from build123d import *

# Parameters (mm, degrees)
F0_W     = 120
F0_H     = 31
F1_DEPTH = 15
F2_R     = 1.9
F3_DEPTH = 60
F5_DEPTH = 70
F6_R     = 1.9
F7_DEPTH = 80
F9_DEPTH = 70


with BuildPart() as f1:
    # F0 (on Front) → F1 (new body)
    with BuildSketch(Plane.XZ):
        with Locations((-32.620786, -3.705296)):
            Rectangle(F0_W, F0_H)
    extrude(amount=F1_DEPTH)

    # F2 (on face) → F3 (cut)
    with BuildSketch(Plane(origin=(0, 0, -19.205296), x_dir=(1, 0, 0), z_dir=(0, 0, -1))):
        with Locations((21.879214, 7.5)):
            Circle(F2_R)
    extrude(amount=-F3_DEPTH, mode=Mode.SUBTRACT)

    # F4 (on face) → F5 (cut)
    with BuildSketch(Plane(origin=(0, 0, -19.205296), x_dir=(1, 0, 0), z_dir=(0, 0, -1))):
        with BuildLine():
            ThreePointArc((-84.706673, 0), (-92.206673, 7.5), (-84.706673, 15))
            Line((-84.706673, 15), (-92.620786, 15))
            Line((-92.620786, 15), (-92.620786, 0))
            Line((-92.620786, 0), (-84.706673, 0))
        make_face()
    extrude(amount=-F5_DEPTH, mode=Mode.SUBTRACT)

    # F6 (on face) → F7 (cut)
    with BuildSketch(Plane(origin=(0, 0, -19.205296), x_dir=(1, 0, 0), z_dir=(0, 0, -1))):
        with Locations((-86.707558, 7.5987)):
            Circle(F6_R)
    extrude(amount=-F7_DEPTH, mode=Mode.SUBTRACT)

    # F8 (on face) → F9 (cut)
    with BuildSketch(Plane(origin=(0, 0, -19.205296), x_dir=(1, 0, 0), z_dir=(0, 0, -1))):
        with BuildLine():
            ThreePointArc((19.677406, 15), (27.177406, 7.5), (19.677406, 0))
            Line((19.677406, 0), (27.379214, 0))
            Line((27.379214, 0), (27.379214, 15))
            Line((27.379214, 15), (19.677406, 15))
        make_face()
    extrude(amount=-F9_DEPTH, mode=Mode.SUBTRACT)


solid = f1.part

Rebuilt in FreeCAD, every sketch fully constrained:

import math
import FreeCAD as App
import Part
import Sketcher
Q = App.Units.Quantity

doc = App.newDocument("Part")
params = doc.addObject("Spreadsheet::Sheet", "Params")
for row, (alias, value) in enumerate([
    ("sketch1_width", "120 mm"),
    ("sketch1_height", "31 mm"),
    ("pad1_length", "15 mm"),
    ("sketch2_diameter", "3.8 mm"),
    ("pocket1_length", "60 mm"),
    ("sketch3_radius", "7.5 mm"),
    ("pocket2_length", "70 mm"),
    ("sketch4_diameter", "3.8 mm"),
    ("pocket3_length", "80 mm"),
    ("sketch5_radius", "7.5 mm"),
    ("pocket4_length", "70 mm"),
], start=1):
    params.set(f"A{row}", alias)
    params.set(f"B{row}", "=" + value)
    params.setAlias(f"B{row}", alias)

body = doc.addObject("PartDesign::Body", "Body")

# Sketch on XZ plane
sketch1 = body.newObject("Sketcher::SketchObject", "Sketch")
sketch1.AttachmentSupport = (doc.getObject("XZ_Plane"), [""])
sketch1.MapMode = "FlatFace"
sketch1.addGeometry([
    Part.LineSegment(App.Vector(-93, 12, 0), App.Vector(-93, -19, 0)),
    Part.LineSegment(App.Vector(-93, -19, 0), App.Vector(27, -19, 0)),
    Part.LineSegment(App.Vector(27, -19, 0), App.Vector(27, 12, 0)),
    Part.LineSegment(App.Vector(27, 12, 0), App.Vector(-93, 12, 0)),
], False)
sketch1.addConstraint([
    Sketcher.Constraint("Coincident", 0, 2, 1, 1),
    Sketcher.Constraint("Coincident", 1, 2, 2, 1),
    Sketcher.Constraint("Coincident", 2, 2, 3, 1),
    Sketcher.Constraint("Coincident", 3, 2, 0, 1),
    Sketcher.Constraint("Vertical", 0),
    Sketcher.Constraint("Horizontal", 1),
    Sketcher.Constraint("Vertical", 2),
    Sketcher.Constraint("Horizontal", 3),
    Sketcher.Constraint("DistanceX", 1, 1, 1, 2, Q("120 mm")),
    Sketcher.Constraint("DistanceY", 0, 2, 0, 1, Q("31 mm")),
    Sketcher.Constraint("DistanceX", 0, 2, -1, 1, Q("92.620786 mm")),
    Sketcher.Constraint("DistanceY", 0, 2, -1, 1, Q("19.205296 mm")),
])
sketch1.setExpression("Constraints[8]", "Params.sketch1_width")
sketch1.setExpression("Constraints[9]", "Params.sketch1_height")
pad1 = body.newObject("PartDesign::Pad", "Pad")
pad1.Profile = sketch1
pad1.setExpression("Length", "Params.pad1_length")

# Sketch on XY plane
sketch2 = body.newObject("Sketcher::SketchObject", "Sketch001")
sketch2.AttachmentSupport = (doc.getObject("XY_Plane"), [""])
sketch2.MapMode = "FlatFace"
sketch2.AttachmentOffset = App.Placement(App.Vector(0, 0, -19.205296), App.Rotation())
sketch2.addGeometry(Part.Circle(App.Vector(21.9, -7.5, 0), App.Vector(0, 0, 1), 1.9), False)
sketch2.addConstraint([
    Sketcher.Constraint("Diameter", 0, Q("3.8 mm")),
    Sketcher.Constraint("DistanceY", 0, 3, -1, 1, Q("7.5 mm")),
    Sketcher.Constraint("DistanceX", -1, 1, 0, 3, Q("21.879214 mm")),
])
sketch2.setExpression("Constraints[0]", "Params.sketch2_diameter")
pocket1 = body.newObject("PartDesign::Pocket", "Pocket")
pocket1.Profile = sketch2
pocket1.setExpression("Length", "Params.pocket1_length")
pocket1.Reversed = True

# Sketch on XY plane
sketch3 = body.newObject("Sketcher::SketchObject", "Sketch002")
sketch3.AttachmentSupport = (doc.getObject("XY_Plane"), [""])
sketch3.MapMode = "FlatFace"
sketch3.AttachmentOffset = App.Placement(App.Vector(0, 0, -19.205296), App.Rotation())
sketch3.addGeometry([
    Part.ArcOfCircle(Part.Circle(App.Vector(-85, -8, 0), App.Vector(0, 0, 1), 8), math.radians(90), math.radians(270)),
    Part.LineSegment(App.Vector(-85, -15, 0), App.Vector(-93, -15, 0)),
    Part.LineSegment(App.Vector(-93, -15, 0), App.Vector(-93, 0, 0)),
    Part.LineSegment(App.Vector(-93, 0, 0), App.Vector(-85, 0, 0)),
], False)
sketch3.addConstraint([
    Sketcher.Constraint("Tangent", 0, 2, 1, 1),
    Sketcher.Constraint("Coincident", 1, 2, 2, 1),
    Sketcher.Constraint("Coincident", 2, 2, 3, 1),
    Sketcher.Constraint("Tangent", 3, 2, 0, 1),
    Sketcher.Constraint("Horizontal", 1),
    Sketcher.Constraint("Vertical", 2),
    Sketcher.Constraint("Horizontal", 3),
    Sketcher.Constraint("PointOnObject", 2, 2, -1),
    Sketcher.Constraint("Radius", 0, Q("7.5 mm")),
    Sketcher.Constraint("DistanceX", 1, 2, 1, 1, Q("7.914113 mm")),
    Sketcher.Constraint("DistanceX", 0, 3, -1, 1, Q("84.706673 mm")),
])
sketch3.setExpression("Constraints[8]", "Params.sketch3_radius")
pocket2 = body.newObject("PartDesign::Pocket", "Pocket001")
pocket2.Profile = sketch3
pocket2.setExpression("Length", "Params.pocket2_length")
pocket2.Reversed = True

# Sketch on XY plane
sketch4 = body.newObject("Sketcher::SketchObject", "Sketch003")
sketch4.AttachmentSupport = (doc.getObject("XY_Plane"), [""])
sketch4.MapMode = "FlatFace"
sketch4.AttachmentOffset = App.Placement(App.Vector(0, 0, -19.205296), App.Rotation())
sketch4.addGeometry(Part.Circle(App.Vector(-86.7, -7.6, 0), App.Vector(0, 0, 1), 1.9), False)
sketch4.addConstraint([
    Sketcher.Constraint("Diameter", 0, Q("3.8 mm")),
    Sketcher.Constraint("DistanceY", 0, 3, -1, 1, Q("7.5987 mm")),
    Sketcher.Constraint("DistanceX", 0, 3, -1, 1, Q("86.707558 mm")),
])
sketch4.setExpression("Constraints[0]", "Params.sketch4_diameter")
pocket3 = body.newObject("PartDesign::Pocket", "Pocket002")
pocket3.Profile = sketch4
pocket3.setExpression("Length", "Params.pocket3_length")
pocket3.Reversed = True

# Sketch on XY plane
sketch5 = body.newObject("Sketcher::SketchObject", "Sketch004")
sketch5.AttachmentSupport = (doc.getObject("XY_Plane"), [""])
sketch5.MapMode = "FlatFace"
sketch5.AttachmentOffset = App.Placement(App.Vector(0, 0, -19.205296), App.Rotation())
sketch5.addGeometry([
    Part.ArcOfCircle(Part.Circle(App.Vector(20, -8, 0), App.Vector(0, 0, 1), 8), math.radians(-90), math.radians(90)),
    Part.LineSegment(App.Vector(20, 0, 0), App.Vector(27, 0, 0)),
    Part.LineSegment(App.Vector(27, 0, 0), App.Vector(27, -15, 0)),
    Part.LineSegment(App.Vector(27, -15, 0), App.Vector(20, -15, 0)),
], False)
sketch5.addConstraint([
    Sketcher.Constraint("Tangent", 0, 2, 1, 1),
    Sketcher.Constraint("Coincident", 1, 2, 2, 1),
    Sketcher.Constraint("Coincident", 2, 2, 3, 1),
    Sketcher.Constraint("Tangent", 3, 2, 0, 1),
    Sketcher.Constraint("Horizontal", 1),
    Sketcher.Constraint("Vertical", 2),
    Sketcher.Constraint("Horizontal", 3),
    Sketcher.Constraint("PointOnObject", 0, 2, -1),
    Sketcher.Constraint("Radius", 0, Q("7.5 mm")),
    Sketcher.Constraint("DistanceX", 1, 1, 1, 2, Q("7.701808 mm")),
    Sketcher.Constraint("DistanceX", -1, 1, 0, 3, Q("19.677406 mm")),
])
sketch5.setExpression("Constraints[8]", "Params.sketch5_radius")
pocket4 = body.newObject("PartDesign::Pocket", "Pocket003")
pocket4.Profile = sketch5
pocket4.setExpression("Length", "Params.pocket4_length")
pocket4.Reversed = True

doc.recompute()
